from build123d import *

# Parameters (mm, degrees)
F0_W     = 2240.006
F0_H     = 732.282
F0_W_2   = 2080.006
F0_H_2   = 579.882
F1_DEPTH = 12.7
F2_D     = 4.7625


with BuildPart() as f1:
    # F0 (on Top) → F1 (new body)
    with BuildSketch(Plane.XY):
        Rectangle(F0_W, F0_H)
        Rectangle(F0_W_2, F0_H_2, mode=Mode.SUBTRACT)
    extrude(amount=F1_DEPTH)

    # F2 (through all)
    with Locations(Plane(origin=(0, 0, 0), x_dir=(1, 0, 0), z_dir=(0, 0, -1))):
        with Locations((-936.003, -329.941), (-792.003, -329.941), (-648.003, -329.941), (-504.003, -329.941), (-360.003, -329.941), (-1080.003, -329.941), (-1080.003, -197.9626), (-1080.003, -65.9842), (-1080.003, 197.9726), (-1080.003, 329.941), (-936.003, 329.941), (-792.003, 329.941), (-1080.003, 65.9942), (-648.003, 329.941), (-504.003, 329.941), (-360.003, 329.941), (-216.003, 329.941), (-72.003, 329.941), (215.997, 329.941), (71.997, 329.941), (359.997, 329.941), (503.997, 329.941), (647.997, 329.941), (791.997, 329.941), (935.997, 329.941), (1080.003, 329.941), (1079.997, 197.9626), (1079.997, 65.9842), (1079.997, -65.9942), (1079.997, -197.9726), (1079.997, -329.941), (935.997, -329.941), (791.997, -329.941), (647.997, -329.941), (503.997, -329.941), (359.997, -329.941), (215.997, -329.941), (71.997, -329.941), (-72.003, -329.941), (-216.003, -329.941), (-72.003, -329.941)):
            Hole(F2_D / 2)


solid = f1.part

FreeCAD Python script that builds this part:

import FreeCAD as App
import Part
import Sketcher
from FreeCAD import Vector
Q = App.Units.Quantity

doc = App.newDocument("Part")
body = doc.addObject("PartDesign::Body", "Body")

sketch1 = doc.addObject("Sketcher::SketchObject", "Sketch")
body.addObject(sketch1)
sketch1.AttachmentSupport = (doc.XY_Plane, [""])
sketch1.MapMode = "FlatFace"
sketch1.addGeometry([
    Part.LineSegment(Vector(-1120, 366, 0), Vector(-1120, -366, 0)),
    Part.LineSegment(Vector(-1120, -366, 0), Vector(1120, -366, 0)),
    Part.LineSegment(Vector(1120, -366, 0), Vector(1120, 366, 0)),
    Part.LineSegment(Vector(1120, 366, 0), Vector(-1120, 366, 0)),
    Part.LineSegment(Vector(1040, -290, 0), Vector(-1040, -290, 0)),
    Part.LineSegment(Vector(-1040, -290, 0), Vector(-1040, 290, 0)),
    Part.LineSegment(Vector(-1040, 290, 0), Vector(1040, 290, 0)),
    Part.LineSegment(Vector(1040, 290, 0), Vector(1040, -290, 0)),
], False)
sketch1.addConstraint([
    Sketcher.Constraint("Coincident", 0, 2, 1, 1),
    Sketcher.Constraint("Coincident", 1, 2, 2, 1),
    Sketcher.Constraint("Coincident", 2, 2, 3, 1),
    Sketcher.Constraint("Coincident", 3, 2, 0, 1),
    Sketcher.Constraint("Coincident", 4, 2, 5, 1),
    Sketcher.Constraint("Coincident", 5, 2, 6, 1),
    Sketcher.Constraint("Coincident", 6, 2, 7, 1),
    Sketcher.Constraint("Coincident", 7, 2, 4, 1),
    Sketcher.Constraint("Vertical", 0),
    Sketcher.Constraint("Horizontal", 1),
    Sketcher.Constraint("Vertical", 2),
    Sketcher.Constraint("Horizontal", 3),
    Sketcher.Constraint("Horizontal", 4),
    Sketcher.Constraint("Vertical", 5),
    Sketcher.Constraint("Horizontal", 6),
    Sketcher.Constraint("Vertical", 7),
    Sketcher.Constraint("Symmetric", 0, 2, 2, 2, -1, 1),
    Sketcher.Constraint("Symmetric", 4, 2, 6, 2, -1, 1),
    Sketcher.Constraint("DistanceY", 0, 2, 4, 2, Q("3 in")),
    Sketcher.Constraint("DistanceX", 4, 2, 4, 1, Q("81.89 in")),
    Sketcher.Constraint("DistanceY", 0, 2, 0, 1, Q("28.83 in")),
    Sketcher.Constraint("DistanceX", 1, 1, 1, 2, Q("2240.006 mm")),
])
pad1 = doc.addObject("PartDesign::Pad", "Pad")
body.addObject(pad1)
pad1.Profile = sketch1
pad1.Length = Q("0.5 in")

sketch2 = doc.addObject("Sketcher::SketchObject", "Sketch001")
body.addObject(sketch2)
sketch2.AttachmentSupport = (doc.XY_Plane, [""])
sketch2.MapMode = "FlatFace"
sketch2.addGeometry([
    Part.Circle(Vector(-936, 329.9, 0), Vector(0, 0, 1), 2.4),
    Part.Circle(Vector(-792, 329.9, 0), Vector(0, 0, 1), 2.4),
    Part.Circle(Vector(-648, 329.9, 0), Vector(0, 0, 1), 2.4),
    Part.Circle(Vector(-504, 329.9, 0), Vector(0, 0, 1), 2.4),
    Part.Circle(Vector(-360, 329.9, 0), Vector(0, 0, 1), 2.4),
    Part.Circle(Vector(-1080, 329.9, 0), Vector(0, 0, 1), 2.4),
    Part.Circle(Vector(-1080, 198, 0), Vector(0, 0, 1), 2.4),
    Part.Circle(Vector(-1080, 66, 0), Vector(0, 0, 1), 2.4),
    Part.Circle(Vector(-1080, -198, 0), Vector(0, 0, 1), 2.4),
    Part.Circle(Vector(-1080, -329.9, 0), Vector(0, 0, 1), 2.4),
    Part.Circle(Vector(-936, -329.9, 0), Vector(0, 0, 1), 2.4),
    Part.Circle(Vector(-792, -329.9, 0), Vector(0, 0, 1), 2.4),
    Part.Circle(Vector(-1080, -66, 0), Vector(0, 0, 1), 2.4),
    Part.Circle(Vector(-648, -329.9, 0), Vector(0, 0, 1), 2.4),
    Part.Circle(Vector(-504, -329.9, 0), Vector(0, 0, 1), 2.4),
    Part.Circle(Vector(-360, -329.9, 0), Vector(0, 0, 1), 2.4),
    Part.Circle(Vector(-216, -329.9, 0), Vector(0, 0, 1), 2.4),
    Part.Circle(Vector(-72, -329.9, 0), Vector(0, 0, 1), 2.4),
    Part.Circle(Vector(216, -329.9, 0), Vector(0, 0, 1), 2.4),
    Part.Circle(Vector(72, -329.9, 0), Vector(0, 0, 1), 2.4),
    Part.Circle(Vector(360, -329.9, 0), Vector(0, 0, 1), 2.4),
    Part.Circle(Vector(504, -329.9, 0), Vector(0, 0, 1), 2.4),
    Part.Circle(Vector(648, -329.9, 0), Vector(0, 0, 1), 2.4),
    Part.Circle(Vector(792, -329.9, 0), Vector(0, 0, 1), 2.4),
    Part.Circle(Vector(936, -329.9, 0), Vector(0, 0, 1), 2.4),
    Part.Circle(Vector(1080, -329.9, 0), Vector(0, 0, 1), 2.4),
    Part.Circle(Vector(1080, -198, 0), Vector(0, 0, 1), 2.4),
    Part.Circle(Vector(1080, -66, 0), Vector(0, 0, 1), 2.4),
    Part.Circle(Vector(1080, 66, 0), Vector(0, 0, 1), 2.4),
    Part.Circle(Vector(1080, 198, 0), Vector(0, 0, 1), 2.4),
    Part.Circle(Vector(1080, 329.9, 0), Vector(0, 0, 1), 2.4),
    Part.Circle(Vector(936, 329.9, 0), Vector(0, 0, 1), 2.4),
    Part.Circle(Vector(792, 329.9, 0), Vector(0, 0, 1), 2.4),
    Part.Circle(Vector(648, 329.9, 0), Vector(0, 0, 1), 2.4),
    Part.Circle(Vector(504, 329.9, 0), Vector(0, 0, 1), 2.4),
    Part.Circle(Vector(360, 329.9, 0), Vector(0, 0, 1), 2.4),
    Part.Circle(Vector(216, 329.9, 0), Vector(0, 0, 1), 2.4),
    Part.Circle(Vector(72, 329.9, 0), Vector(0, 0, 1), 2.4),
    Part.Circle(Vector(-72, 329.9, 0), Vector(0, 0, 1), 2.4),
    Part.Circle(Vector(-216, 329.9, 0), Vector(0, 0, 1), 2.4),
    Part.Circle(Vector(-72, 329.9, 0), Vector(0, 0, 1), 2.4),
], False)
sketch2.addConstraint([
    Sketcher.Constraint("Coincident", 40, 3, 38, 3),
    Sketcher.Constraint("Equal", 0, 1),
    Sketcher.Constraint("Equal", 1, 2),
    Sketcher.Constraint("Equal", 2, 3),
    Sketcher.Constraint("Equal", 3, 4),
    Sketcher.Constraint("Equal", 4, 5),
    Sketcher.Constraint("Equal", 5, 6),
    Sketcher.Constraint("Equal", 6, 7),
    Sketcher.Constraint("Equal", 7, 8),
    Sketcher.Constraint("Equal", 8, 9),
    Sketcher.Constraint("Equal", 9, 10),
    Sketcher.Constraint("Equal", 10, 11),
    Sketcher.Constraint("Equal", 11, 12),
    Sketcher.Constraint("Equal", 12, 13),
    Sketcher.Constraint("Equal", 13, 14),
    Sketcher.Constraint("Equal", 14, 15),
    Sketcher.Constraint("Equal", 15, 16),
    Sketcher.Constraint("Equal", 16, 17),
    Sketcher.Constraint("Equal", 17, 18),
    Sketcher.Constraint("Equal", 18, 19),
    Sketcher.Constraint("Equal", 19, 20),
    Sketcher.Constraint("Equal", 20, 21),
    Sketcher.Constraint("Equal", 21, 22),
    Sketcher.Constraint("Equal", 22, 23),
    Sketcher.Constraint("Equal", 23, 24),
    Sketcher.Constraint("Equal", 24, 25),
    Sketcher.Constraint("Equal", 25, 26),
    Sketcher.Constraint("Equal", 26, 27),
    Sketcher.Constraint("Equal", 27, 28),
    Sketcher.Constraint("Equal", 28, 29),
    Sketcher.Constraint("Equal", 29, 30),
    Sketcher.Constraint("Equal", 30, 31),
    Sketcher.Constraint("Equal", 31, 32),
    Sketcher.Constraint("Equal", 32, 33),
    Sketcher.Constraint("Equal", 33, 34),
    Sketcher.Constraint("Equal", 34, 35),
    Sketcher.Constraint("Equal", 35, 36),
    Sketcher.Constraint("Equal", 36, 37),
    Sketcher.Constraint("Equal", 37, 38),
    Sketcher.Constraint("Equal", 38, 39),
    Sketcher.Constraint("Equal", 39, 40),
    Sketcher.Constraint("Symmetric", 5, 3, 25, 3, -1, 1),
    Sketcher.Constraint("Symmetric", 9, 3, 25, 3, -2),
    Sketcher.Constraint("Symmetric", 0, 3, 10, 3, -1),
    Sketcher.Constraint("Symmetric", 1, 3, 11, 3, -1),
    Sketcher.Constraint("Symmetric", 2, 3, 13, 3, -1),
    Sketcher.Constraint("Symmetric", 3, 3, 14, 3, -1),
    Sketcher.Constraint("Symmetric", 4, 3, 15, 3, -1),
    Sketcher.Constraint("Symmetric", 24, 3, 31, 3, -1),
    Sketcher.Constraint("Symmetric", 23, 3, 32, 3, -1),
    Sketcher.Constraint("Symmetric", 22, 3, 33, 3, -1),
    Sketcher.Constraint("Symmetric", 21, 3, 34, 3, -1),
    Sketcher.Constraint("Symmetric", 20, 3, 35, 3, -1),
    Sketcher.Constraint("Symmetric", 18, 3, 36, 3, -1),
    Sketcher.Constraint("Symmetric", 19, 3, 37, 3, -1),
    Sketcher.Constraint("Symmetric", 17, 3, 38, 3, -1),
    Sketcher.Constraint("Symmetric", 16, 3, 39, 3, -1),
    Sketcher.Constraint("Horizontal", 0, 3, 1, 3),
    Sketcher.Constraint("Horizontal", 1, 3, 2, 3),
    Sketcher.Constraint("Horizontal", 2, 3, 3, 3),
    Sketcher.Constraint("Horizontal", 3, 3, 4, 3),
    Sketcher.Constraint("Horizontal", 4, 3, 5, 3),
    Sketcher.Constraint("Horizontal", 15, 3, 16, 3),
    Sketcher.Constraint("Horizontal", 16, 3, 17, 3),
    Sketcher.Constraint("Horizontal", 17, 3, 18, 3),
    Sketcher.Constraint("Horizontal", 18, 3, 19, 3),
    Sketcher.Constraint("Horizontal", 19, 3, 20, 3),
    Sketcher.Constraint("Horizontal", 20, 3, 21, 3),
    Sketcher.Constraint("Horizontal", 21, 3, 22, 3),
    Sketcher.Constraint("Horizontal", 22, 3, 23, 3),
    Sketcher.Constraint("Horizontal", 23, 3, 24, 3),
    Sketcher.Constraint("Horizontal", 5, 3, 30, 3),
    Sketcher.Constraint("Vertical", 5, 3, 6, 3),
    Sketcher.Constraint("Vertical", 6, 3, 7, 3),
    Sketcher.Constraint("Vertical", 7, 3, 8, 3),
    Sketcher.Constraint("Vertical", 9, 3, 12, 3),
    Sketcher.Constraint("Vertical", 26, 3, 27, 3),
    Sketcher.Constraint("Vertical", 27, 3, 28, 3),
    Sketcher.Constraint("Vertical", 28, 3, 29, 3),
    Sketcher.Constraint("Vertical", 29, 3, 30, 3),
    Sketcher.Constraint("Diameter", 0, Q("0.1875 in")),
    Sketcher.Constraint("DistanceY", 6, 3, 5, 3, Q("5.196 in")),
    Sketcher.Constraint("DistanceY", 7, 3, 6, 3, Q("5.196 in")),
    Sketcher.Constraint("DistanceY", 8, 3, 7, 3, Q("10.392 in")),
    Sketcher.Constraint("DistanceY", 8, 3, 12, 3, Q("5.196 in")),
    Sketcher.Constraint("DistanceY", 25, 3, 26, 3, Q("5.196 in")),
    Sketcher.Constraint("DistanceY", 26, 3, 27, 3, Q("5.196 in")),
    Sketcher.Constraint("DistanceY", 27, 3, 28, 3, Q("5.196 in")),
    Sketcher.Constraint("DistanceY", 28, 3, 29, 3, Q("5.196 in")),
    Sketcher.Constraint("DistanceX", 0, 3, -1, 1, Q("936.003 mm")),
    Sketcher.Constraint("DistanceY", -1, 1, 0, 3, Q("329.941 mm")),
    Sketcher.Constraint("DistanceX", 1, 3, -1, 1, Q("792.003 mm")),
    Sketcher.Constraint("DistanceX", 2, 3, -1, 1, Q("648.003 mm")),
    Sketcher.Constraint("DistanceX", 3, 3, -1, 1, Q("504.003 mm")),
    Sketcher.Constraint("DistanceX", 4, 3, -1, 1, Q("360.003 mm")),
    Sketcher.Constraint("DistanceX", 5, 3, -1, 1, Q("1080.003 mm")),
    Sketcher.Constraint("DistanceX", 16, 3, -1, 1, Q("216.003 mm")),
    Sketcher.Constraint("DistanceX", 17, 3, -1, 1, Q("72.003 mm")),
    Sketcher.Constraint("DistanceX", -1, 1, 18, 3, Q("215.997 mm")),
    Sketcher.Constraint("DistanceX", -1, 1, 19, 3, Q("71.997 mm")),
    Sketcher.Constraint("DistanceX", -1, 1, 20, 3, Q("359.997 mm")),
    Sketcher.Constraint("DistanceX", -1, 1, 21, 3, Q("503.997 mm")),
    Sketcher.Constraint("DistanceX", -1, 1, 22, 3, Q("647.997 mm")),
    Sketcher.Constraint("DistanceX", -1, 1, 23, 3, Q("791.997 mm")),
    Sketcher.Constraint("DistanceX", -1, 1, 24, 3, Q("935.997 mm")),
    Sketcher.Constraint("DistanceX", -1, 1, 26, 3, Q("1079.997 mm")),
])
doc.recompute()
hole = doc.addObject("PartDesign::Hole", "Hole")
body.addObject(hole)
hole.Profile = sketch2
hole.ThreadType = "None"
hole.Diameter = Q("0.1875 in")
hole.DepthType = "ThroughAll"
hole.Reversed = True

doc.recompute()
